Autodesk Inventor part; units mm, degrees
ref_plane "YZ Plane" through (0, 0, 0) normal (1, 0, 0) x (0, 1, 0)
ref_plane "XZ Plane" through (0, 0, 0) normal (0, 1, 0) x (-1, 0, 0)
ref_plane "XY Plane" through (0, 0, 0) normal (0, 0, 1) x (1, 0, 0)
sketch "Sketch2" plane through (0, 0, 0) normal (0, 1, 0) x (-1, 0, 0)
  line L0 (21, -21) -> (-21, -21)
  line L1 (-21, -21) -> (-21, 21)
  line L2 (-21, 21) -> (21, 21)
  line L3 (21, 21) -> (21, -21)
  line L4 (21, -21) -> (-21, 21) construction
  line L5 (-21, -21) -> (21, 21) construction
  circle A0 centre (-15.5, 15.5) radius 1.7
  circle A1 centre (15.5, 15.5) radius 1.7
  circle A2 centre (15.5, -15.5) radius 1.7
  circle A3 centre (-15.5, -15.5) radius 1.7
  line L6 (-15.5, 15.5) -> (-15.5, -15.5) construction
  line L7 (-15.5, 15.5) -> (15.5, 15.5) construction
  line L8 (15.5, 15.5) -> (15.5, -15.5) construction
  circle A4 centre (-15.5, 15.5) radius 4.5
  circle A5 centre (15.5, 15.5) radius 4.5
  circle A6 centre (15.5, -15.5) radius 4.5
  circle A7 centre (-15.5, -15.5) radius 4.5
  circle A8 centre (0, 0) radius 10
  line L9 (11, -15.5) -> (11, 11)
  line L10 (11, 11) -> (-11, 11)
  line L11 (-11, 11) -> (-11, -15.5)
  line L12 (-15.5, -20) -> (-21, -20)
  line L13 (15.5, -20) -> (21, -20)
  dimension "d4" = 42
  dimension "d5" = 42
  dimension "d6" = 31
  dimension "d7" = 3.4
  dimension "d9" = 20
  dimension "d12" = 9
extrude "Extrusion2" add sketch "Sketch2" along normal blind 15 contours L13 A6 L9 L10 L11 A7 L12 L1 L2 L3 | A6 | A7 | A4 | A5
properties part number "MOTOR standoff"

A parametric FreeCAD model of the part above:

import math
import FreeCAD as App
import Part
import Sketcher

V = App.Vector

doc = App.newDocument("Part")
body = doc.addObject("PartDesign::Body", "Body")

# Sketch on XZ plane
sketch1 = body.newObject("Sketcher::SketchObject", "Sketch")
sketch1.AttachmentSupport = (doc.getObject("XZ_Plane"), [""])
sketch1.MapMode = "FlatFace"
sketch1.addGeometry([
    Part.LineSegment(V(-15.5, -20, 0), V(-21, -20, 0)),  # 0
    Part.LineSegment(V(-21, -20, 0), V(-21, 21, 0)),  # 1
    Part.LineSegment(V(-21, 21, 0), V(21, 21, 0)),  # 2
    Part.LineSegment(V(21, 21, 0), V(21, -20, 0)),  # 3
    Part.LineSegment(V(21, -20, 0), V(15.5, -20, 0)),  # 4
    Part.ArcOfCircle(Part.Circle(V(15.5, -15.5, 0), V(0, 0, 1), 4.5), math.radians(180), math.radians(270)),  # 5
    Part.LineSegment(V(11, -15.5, 0), V(11, 11, 0)),  # 6
    Part.LineSegment(V(11, 11, 0), V(-11, 11, 0)),  # 7
    Part.LineSegment(V(-11, 11, 0), V(-11, -15.5, 0)),  # 8
    Part.ArcOfCircle(Part.Circle(V(-15.5, -15.5, 0), V(0, 0, 1), 4.5), math.radians(-90), math.radians(0)),  # 9
    Part.Circle(V(-15.5, -15.5, 0), V(0, 0, 1), 1.7),  # 10
    Part.Circle(V(15.5, -15.5, 0), V(0, 0, 1), 1.7),  # 11
    Part.Circle(V(15.5, 15.5, 0), V(0, 0, 1), 1.7),  # 12
    Part.Circle(V(-15.5, 15.5, 0), V(0, 0, 1), 1.7),  # 13
], False)
sketch1.addConstraint([
    Sketcher.Constraint("Coincident", 0, 2, 1, 1),
    Sketcher.Constraint("Coincident", 1, 2, 2, 1),
    Sketcher.Constraint("Coincident", 2, 2, 3, 1),
    Sketcher.Constraint("Coincident", 3, 2, 4, 1),
    Sketcher.Constraint("Tangent", 4, 2, 5, 2),
    Sketcher.Constraint("Tangent", 5, 1, 6, 1),
    Sketcher.Constraint("Coincident", 6, 2, 7, 1),
    Sketcher.Constraint("Coincident", 7, 2, 8, 1),
    Sketcher.Constraint("Tangent", 8, 2, 9, 2),
    Sketcher.Constraint("Tangent", 9, 1, 0, 1),
    Sketcher.Constraint("Horizontal", 0),
    Sketcher.Constraint("Vertical", 1),
    Sketcher.Constraint("Horizontal", 2),
    Sketcher.Constraint("Vertical", 3),
    Sketcher.Constraint("Horizontal", 4),
    Sketcher.Constraint("Vertical", 6),
    Sketcher.Constraint("Horizontal", 7),
    Sketcher.Constraint("Vertical", 8),
    Sketcher.Constraint("Coincident", 10, 3, 9, 3),
    Sketcher.Constraint("Coincident", 11, 3, 5, 3),
    Sketcher.Constraint("Equal", 5, 9),
    Sketcher.Constraint("Equal", 10, 11),
    Sketcher.Constraint("Equal", 11, 12),
    Sketcher.Constraint("Equal", 12, 13),
    Sketcher.Constraint("Symmetric", 9, 3, 12, 3, -1, 1),
    Sketcher.Constraint("Symmetric", 5, 3, 13, 3, -1, 1),
    Sketcher.Constraint("Symmetric", 5, 3, 9, 3, -2),
    Sketcher.Constraint("Equal", 0, 4),
    Sketcher.Constraint("Diameter", 10, 3.4),
    Sketcher.Constraint("Radius", 5, 4.5),
    Sketcher.Constraint("DistanceX", 2, 1, 2, 2, 42.0),
    Sketcher.Constraint("DistanceY", 0, 2, -1, 1, 20.0),
    Sketcher.Constraint("DistanceX", 9, 3, 5, 3, 31.0),
    Sketcher.Constraint("DistanceY", 1, 1, 1, 2, 41.0),
    Sketcher.Constraint("DistanceY", 6, 1, 6, 2, 26.5),
])
pad1 = body.newObject("PartDesign::Pad", "Pad")
pad1.Profile = sketch1
pad1.Length = 15
pad1.Reversed = True

doc.recompute()
